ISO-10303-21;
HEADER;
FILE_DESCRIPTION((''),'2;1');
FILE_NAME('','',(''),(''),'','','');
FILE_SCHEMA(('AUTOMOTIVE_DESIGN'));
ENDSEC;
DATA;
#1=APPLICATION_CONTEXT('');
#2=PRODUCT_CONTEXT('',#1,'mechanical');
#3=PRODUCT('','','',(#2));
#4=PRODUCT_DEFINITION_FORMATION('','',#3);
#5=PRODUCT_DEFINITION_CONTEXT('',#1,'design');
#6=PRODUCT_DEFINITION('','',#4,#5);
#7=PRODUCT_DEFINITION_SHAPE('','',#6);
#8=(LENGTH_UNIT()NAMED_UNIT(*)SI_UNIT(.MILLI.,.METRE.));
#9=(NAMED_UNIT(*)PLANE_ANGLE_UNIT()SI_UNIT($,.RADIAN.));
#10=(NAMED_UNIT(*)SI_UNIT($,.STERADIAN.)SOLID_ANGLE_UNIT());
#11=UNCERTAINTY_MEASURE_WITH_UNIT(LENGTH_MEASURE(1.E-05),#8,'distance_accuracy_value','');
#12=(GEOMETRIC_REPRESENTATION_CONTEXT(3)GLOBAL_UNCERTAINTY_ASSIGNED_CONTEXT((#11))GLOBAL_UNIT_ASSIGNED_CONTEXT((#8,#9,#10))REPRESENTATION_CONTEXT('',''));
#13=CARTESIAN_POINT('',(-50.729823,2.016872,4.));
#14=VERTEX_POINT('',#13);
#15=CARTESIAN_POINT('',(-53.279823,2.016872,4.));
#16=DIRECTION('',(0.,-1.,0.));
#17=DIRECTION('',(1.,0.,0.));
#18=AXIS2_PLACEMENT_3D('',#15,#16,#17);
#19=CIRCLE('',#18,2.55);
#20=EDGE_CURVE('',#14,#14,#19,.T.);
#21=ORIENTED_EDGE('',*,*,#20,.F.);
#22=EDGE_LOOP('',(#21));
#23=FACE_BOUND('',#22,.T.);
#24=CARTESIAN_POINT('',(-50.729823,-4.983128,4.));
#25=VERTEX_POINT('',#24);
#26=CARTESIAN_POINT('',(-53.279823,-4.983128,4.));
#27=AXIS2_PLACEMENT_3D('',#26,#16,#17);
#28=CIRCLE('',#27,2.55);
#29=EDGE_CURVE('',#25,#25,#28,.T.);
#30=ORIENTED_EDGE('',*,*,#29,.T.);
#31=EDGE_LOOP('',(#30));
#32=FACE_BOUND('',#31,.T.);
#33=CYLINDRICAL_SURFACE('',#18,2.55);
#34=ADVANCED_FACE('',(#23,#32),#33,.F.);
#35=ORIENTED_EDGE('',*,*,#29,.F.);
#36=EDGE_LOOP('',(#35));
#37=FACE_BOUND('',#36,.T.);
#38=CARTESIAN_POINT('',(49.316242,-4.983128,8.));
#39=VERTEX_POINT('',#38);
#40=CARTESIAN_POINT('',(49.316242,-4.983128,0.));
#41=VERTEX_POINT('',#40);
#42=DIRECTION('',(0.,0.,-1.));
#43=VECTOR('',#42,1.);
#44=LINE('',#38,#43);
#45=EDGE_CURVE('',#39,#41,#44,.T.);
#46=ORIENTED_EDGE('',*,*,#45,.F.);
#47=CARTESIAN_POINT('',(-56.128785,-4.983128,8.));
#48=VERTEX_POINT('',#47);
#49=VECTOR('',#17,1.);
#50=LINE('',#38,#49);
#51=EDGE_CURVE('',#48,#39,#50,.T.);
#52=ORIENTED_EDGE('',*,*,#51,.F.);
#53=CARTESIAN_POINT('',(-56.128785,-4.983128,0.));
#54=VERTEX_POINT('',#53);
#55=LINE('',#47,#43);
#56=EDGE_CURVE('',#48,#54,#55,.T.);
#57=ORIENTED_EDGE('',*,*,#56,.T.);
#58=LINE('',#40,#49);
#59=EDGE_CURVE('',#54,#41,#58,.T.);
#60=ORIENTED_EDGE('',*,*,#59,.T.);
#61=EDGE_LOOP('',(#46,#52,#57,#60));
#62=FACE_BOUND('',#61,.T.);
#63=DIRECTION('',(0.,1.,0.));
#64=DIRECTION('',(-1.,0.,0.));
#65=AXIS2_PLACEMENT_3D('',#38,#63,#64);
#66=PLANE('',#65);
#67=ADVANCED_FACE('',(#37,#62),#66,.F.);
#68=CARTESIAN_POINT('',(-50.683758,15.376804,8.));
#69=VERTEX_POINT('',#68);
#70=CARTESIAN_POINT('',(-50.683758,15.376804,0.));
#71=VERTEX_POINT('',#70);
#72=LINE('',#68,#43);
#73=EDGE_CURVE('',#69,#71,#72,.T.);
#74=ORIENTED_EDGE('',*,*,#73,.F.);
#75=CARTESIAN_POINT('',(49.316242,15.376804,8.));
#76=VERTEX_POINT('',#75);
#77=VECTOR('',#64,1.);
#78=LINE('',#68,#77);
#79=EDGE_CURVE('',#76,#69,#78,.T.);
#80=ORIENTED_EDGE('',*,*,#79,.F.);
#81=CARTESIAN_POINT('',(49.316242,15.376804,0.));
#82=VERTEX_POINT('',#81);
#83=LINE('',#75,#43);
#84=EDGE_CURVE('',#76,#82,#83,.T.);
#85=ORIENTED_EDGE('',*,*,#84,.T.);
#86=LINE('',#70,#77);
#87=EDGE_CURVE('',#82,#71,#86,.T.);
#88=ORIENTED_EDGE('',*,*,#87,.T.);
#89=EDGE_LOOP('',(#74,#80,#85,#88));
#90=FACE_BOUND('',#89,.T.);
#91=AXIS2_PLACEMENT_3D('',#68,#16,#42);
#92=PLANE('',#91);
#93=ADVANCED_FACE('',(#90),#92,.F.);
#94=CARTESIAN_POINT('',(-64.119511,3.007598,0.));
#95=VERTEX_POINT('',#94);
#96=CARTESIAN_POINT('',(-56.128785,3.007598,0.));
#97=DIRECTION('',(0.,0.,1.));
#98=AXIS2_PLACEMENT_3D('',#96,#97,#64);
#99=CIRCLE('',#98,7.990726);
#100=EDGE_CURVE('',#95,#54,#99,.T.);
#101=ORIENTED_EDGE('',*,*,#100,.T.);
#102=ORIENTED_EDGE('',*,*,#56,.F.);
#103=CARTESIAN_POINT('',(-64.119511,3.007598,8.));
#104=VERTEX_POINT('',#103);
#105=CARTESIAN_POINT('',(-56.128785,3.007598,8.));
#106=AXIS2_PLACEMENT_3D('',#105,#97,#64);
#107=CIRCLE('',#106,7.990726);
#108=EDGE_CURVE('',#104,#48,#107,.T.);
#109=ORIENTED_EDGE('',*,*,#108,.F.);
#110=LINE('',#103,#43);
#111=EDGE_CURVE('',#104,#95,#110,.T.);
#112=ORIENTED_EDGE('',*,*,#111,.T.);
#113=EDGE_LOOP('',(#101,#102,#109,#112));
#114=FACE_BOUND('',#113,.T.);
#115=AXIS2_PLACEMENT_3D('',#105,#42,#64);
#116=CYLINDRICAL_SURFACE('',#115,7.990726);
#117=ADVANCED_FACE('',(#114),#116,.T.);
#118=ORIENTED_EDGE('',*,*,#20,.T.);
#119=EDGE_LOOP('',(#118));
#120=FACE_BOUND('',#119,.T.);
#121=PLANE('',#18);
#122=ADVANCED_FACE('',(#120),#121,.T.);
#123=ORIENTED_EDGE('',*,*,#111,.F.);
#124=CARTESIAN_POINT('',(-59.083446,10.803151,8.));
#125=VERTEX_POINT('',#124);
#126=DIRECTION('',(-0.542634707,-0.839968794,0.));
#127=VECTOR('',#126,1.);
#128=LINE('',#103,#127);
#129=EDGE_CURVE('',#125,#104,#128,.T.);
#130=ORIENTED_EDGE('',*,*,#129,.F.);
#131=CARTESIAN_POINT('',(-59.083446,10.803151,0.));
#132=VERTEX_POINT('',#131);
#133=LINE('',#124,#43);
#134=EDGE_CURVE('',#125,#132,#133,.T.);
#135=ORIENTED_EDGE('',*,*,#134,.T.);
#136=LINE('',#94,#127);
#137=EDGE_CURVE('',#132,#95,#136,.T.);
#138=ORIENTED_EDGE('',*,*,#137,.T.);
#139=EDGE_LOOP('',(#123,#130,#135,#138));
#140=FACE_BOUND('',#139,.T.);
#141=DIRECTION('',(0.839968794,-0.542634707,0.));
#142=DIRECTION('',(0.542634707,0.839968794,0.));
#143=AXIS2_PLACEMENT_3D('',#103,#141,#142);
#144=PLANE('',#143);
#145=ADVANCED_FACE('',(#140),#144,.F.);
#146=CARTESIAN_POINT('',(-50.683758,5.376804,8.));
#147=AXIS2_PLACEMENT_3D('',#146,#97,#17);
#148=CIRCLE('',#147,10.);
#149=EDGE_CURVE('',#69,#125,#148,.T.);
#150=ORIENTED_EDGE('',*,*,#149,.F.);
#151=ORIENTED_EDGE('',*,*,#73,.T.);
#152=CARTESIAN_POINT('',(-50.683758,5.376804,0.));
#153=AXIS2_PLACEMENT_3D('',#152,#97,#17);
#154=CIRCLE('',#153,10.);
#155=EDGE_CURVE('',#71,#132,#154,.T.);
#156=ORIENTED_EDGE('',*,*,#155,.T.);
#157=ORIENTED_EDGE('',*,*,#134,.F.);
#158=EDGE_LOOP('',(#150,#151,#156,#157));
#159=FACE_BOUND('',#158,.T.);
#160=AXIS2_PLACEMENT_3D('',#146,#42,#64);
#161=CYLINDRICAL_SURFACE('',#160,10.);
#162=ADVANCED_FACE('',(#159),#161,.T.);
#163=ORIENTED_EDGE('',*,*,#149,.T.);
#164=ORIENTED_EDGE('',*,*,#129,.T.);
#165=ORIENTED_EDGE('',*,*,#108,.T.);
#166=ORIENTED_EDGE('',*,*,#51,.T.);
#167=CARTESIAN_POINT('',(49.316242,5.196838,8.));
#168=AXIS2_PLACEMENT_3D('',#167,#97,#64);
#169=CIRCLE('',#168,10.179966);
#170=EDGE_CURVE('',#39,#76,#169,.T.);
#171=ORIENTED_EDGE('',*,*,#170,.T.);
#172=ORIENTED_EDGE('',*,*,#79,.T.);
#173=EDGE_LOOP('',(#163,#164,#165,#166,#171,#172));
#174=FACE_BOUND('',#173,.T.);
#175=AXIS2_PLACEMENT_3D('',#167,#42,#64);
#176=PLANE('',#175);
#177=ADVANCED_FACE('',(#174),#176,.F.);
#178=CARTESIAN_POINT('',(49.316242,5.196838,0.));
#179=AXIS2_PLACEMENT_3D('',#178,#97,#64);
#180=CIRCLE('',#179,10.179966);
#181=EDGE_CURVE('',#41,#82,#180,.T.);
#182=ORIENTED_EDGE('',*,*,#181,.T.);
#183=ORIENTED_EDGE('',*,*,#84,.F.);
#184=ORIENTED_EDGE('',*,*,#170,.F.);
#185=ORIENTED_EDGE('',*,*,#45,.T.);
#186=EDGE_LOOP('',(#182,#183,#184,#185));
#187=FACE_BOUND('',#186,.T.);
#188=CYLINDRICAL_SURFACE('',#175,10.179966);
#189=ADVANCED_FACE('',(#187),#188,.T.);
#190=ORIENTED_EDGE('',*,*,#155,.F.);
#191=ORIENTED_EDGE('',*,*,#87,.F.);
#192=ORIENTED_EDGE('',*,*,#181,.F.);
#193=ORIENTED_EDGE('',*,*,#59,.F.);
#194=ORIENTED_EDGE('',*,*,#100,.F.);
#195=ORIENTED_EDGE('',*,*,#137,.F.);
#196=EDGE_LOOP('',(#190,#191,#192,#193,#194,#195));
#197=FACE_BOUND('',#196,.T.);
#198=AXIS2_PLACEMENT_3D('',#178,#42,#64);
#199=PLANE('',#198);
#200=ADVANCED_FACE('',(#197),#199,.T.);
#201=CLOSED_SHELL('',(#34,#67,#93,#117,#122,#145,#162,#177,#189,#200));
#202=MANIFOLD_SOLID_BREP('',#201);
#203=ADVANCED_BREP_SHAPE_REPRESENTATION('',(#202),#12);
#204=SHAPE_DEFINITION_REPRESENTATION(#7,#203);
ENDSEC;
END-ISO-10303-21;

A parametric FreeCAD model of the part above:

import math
import FreeCAD as App
import Part
import Sketcher
from FreeCAD import Vector

doc = App.newDocument("Part")
params = doc.addObject("Spreadsheet::Sheet", "Params")
for row, (alias, value) in enumerate([
    ("sketch1_radius", "10 mm"),
    ("sketch1_width", "100 mm"),
    ("pad1_length", "8 mm"),
    ("sketch2_diameter", "5.1 mm"),
    ("pocket1_length", "7 mm"),
], start=1):
    params.set(f"A{row}", alias)
    params.set(f"B{row}", "=" + value)
    params.setAlias(f"B{row}", alias)

body = doc.addObject("PartDesign::Body", "Body")

sketch1 = body.newObject("Sketcher::SketchObject", "Sketch")
sketch1.AttachmentSupport = (doc.getObject("XY_Plane"), [""])
sketch1.MapMode = "FlatFace"
sketch1.addGeometry([
    Part.LineSegment(Vector(49, 15, 0), Vector(-51, 15, 0)),
    Part.ArcOfCircle(Part.Circle(Vector(-51, 5, 0), Vector(0, 0, 1), 10), math.radians(90), math.radians(147)),
    Part.LineSegment(Vector(-59, 11, 0), Vector(-64, 3, 0)),
    Part.ArcOfCircle(Part.Circle(Vector(-56, 3, 0), Vector(0, 0, 1), 8), math.radians(-180), math.radians(-90)),
    Part.LineSegment(Vector(-56, -5, 0), Vector(49, -5, 0)),
    Part.ArcOfCircle(Part.Circle(Vector(49, 5, 0), Vector(0, 0, 1), 10), math.radians(-90), math.radians(90)),
], False)
sketch1.addConstraint([
    Sketcher.Constraint("Tangent", 0, 2, 1, 1),
    Sketcher.Constraint("Tangent", 1, 2, 2, 1),
    Sketcher.Constraint("Coincident", 2, 2, 3, 1),
    Sketcher.Constraint("Tangent", 3, 2, 4, 1),
    Sketcher.Constraint("Tangent", 4, 2, 5, 1),
    Sketcher.Constraint("Tangent", 5, 2, 0, 1),
    Sketcher.Constraint("Horizontal", 0),
    Sketcher.Constraint("Horizontal", 4),
    Sketcher.Constraint("Horizontal", 3, 3, 2, 2),
    Sketcher.Constraint("Radius", 1, 10.0),
    Sketcher.Constraint("DistanceX", 0, 2, 0, 1, 100.0),
    Sketcher.Constraint("Radius", 3, 7.990726),
    Sketcher.Constraint("Radius", 5, 10.179966),
    Sketcher.Constraint("DistanceX", 4, 1, 4, 2, 105.445027),
    Sketcher.Constraint("DistanceY", -1, 1, 1, 2, 10.803151),
    Sketcher.Constraint("DistanceX", 2, 2, -1, 1, 64.119511),
])
sketch1.setExpression("Constraints[9]", "Params.sketch1_radius")
sketch1.setExpression("Constraints[10]", "Params.sketch1_width")
pad1 = body.newObject("PartDesign::Pad", "Pad")
pad1.Profile = sketch1
pad1.setExpression("Length", "Params.pad1_length")

sketch2 = body.newObject("Sketcher::SketchObject", "Sketch001")
sketch2.AttachmentSupport = (doc.getObject("XZ_Plane"), [""])
sketch2.MapMode = "FlatFace"
sketch2.AttachmentOffset = App.Placement(Vector(0, 0, 4.983128), App.Rotation())
sketch2.addGeometry(Part.Circle(Vector(-53.3, 4, 0), Vector(0, 0, 1), 2.5), False)
sketch2.addConstraint([
    Sketcher.Constraint("Diameter", 0, 5.1),
    Sketcher.Constraint("DistanceY", -1, 1, 0, 3, 4.0),
    Sketcher.Constraint("DistanceX", 0, 3, -1, 1, 53.279823),
])
sketch2.setExpression("Constraints[0]", "Params.sketch2_diameter")
pocket1 = body.newObject("PartDesign::Pocket", "Pocket")
pocket1.Profile = sketch2
pocket1.setExpression("Length", "Params.pocket1_length")

doc.recompute()
